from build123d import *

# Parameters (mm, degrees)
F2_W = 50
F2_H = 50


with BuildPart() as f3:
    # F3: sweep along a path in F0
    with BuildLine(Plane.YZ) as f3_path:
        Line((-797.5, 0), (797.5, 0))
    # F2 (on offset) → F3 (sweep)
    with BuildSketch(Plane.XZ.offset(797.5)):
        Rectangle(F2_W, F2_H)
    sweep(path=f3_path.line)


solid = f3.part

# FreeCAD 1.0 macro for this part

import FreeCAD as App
import Part
import Sketcher

V = App.Vector


def add_polygon(sketch, points):
    """Adds a closed chain of lines whose ends are joined by coincident constraints."""
    first, n = sketch.GeometryCount, len(points)
    for a, b in zip(points, points[1:] + points[:1]):
        sketch.addGeometry(Part.LineSegment(App.Vector(*a, 0), App.Vector(*b, 0)), False)
    for i in range(n):
        sketch.addConstraint(Sketcher.Constraint("Coincident", first + i, 2, first + (i + 1) % n, 1))

doc = App.newDocument("Part")
body = doc.addObject("PartDesign::Body", "Body")

# Sketch on XZ plane
sketch1 = body.newObject("Sketcher::SketchObject", "Sketch")
sketch1.AttachmentSupport = (doc.getObject("XZ_Plane"), [""])
sketch1.MapMode = "FlatFace"
sketch1.AttachmentOffset = App.Placement(V(0, 0, 797.5), App.Rotation())
add_polygon(sketch1, [(-25, 25), (-25, -25), (25, -25), (25, 25)])  # lines 0-3
sketch1.addConstraint([
    Sketcher.Constraint("Vertical", 0),
    Sketcher.Constraint("Horizontal", 1),
    Sketcher.Constraint("Vertical", 2),
    Sketcher.Constraint("Horizontal", 3),
    Sketcher.Constraint("Symmetric", 0, 2, 2, 2, -1, 1),
    Sketcher.Constraint("Equal", 3, 0),
    Sketcher.Constraint("DistanceX", 1, 1, 1, 2, 50.0),
])

# Sketch on XY plane
sketch2 = body.newObject("Sketcher::SketchObject", "Sketch001")
sketch2.AttachmentSupport = (doc.getObject("XY_Plane"), [""])
sketch2.MapMode = "FlatFace"
sketch2.addGeometry(Part.LineSegment(V(0, -798, 0), V(0, 798, 0)), False)
sketch2.addConstraint([
    Sketcher.Constraint("Vertical", 0),
    Sketcher.Constraint("Symmetric", 0, 1, 0, 2, -1, 1),
    Sketcher.Constraint("DistanceY", 0, 1, 0, 2, 1595.0),
])
doc.recompute()

additivepipe = body.newObject("PartDesign::AdditivePipe", "AdditivePipe")
additivepipe.Profile = sketch1
additivepipe.Spine = (sketch2, ["Edge1"])

doc.recompute()
